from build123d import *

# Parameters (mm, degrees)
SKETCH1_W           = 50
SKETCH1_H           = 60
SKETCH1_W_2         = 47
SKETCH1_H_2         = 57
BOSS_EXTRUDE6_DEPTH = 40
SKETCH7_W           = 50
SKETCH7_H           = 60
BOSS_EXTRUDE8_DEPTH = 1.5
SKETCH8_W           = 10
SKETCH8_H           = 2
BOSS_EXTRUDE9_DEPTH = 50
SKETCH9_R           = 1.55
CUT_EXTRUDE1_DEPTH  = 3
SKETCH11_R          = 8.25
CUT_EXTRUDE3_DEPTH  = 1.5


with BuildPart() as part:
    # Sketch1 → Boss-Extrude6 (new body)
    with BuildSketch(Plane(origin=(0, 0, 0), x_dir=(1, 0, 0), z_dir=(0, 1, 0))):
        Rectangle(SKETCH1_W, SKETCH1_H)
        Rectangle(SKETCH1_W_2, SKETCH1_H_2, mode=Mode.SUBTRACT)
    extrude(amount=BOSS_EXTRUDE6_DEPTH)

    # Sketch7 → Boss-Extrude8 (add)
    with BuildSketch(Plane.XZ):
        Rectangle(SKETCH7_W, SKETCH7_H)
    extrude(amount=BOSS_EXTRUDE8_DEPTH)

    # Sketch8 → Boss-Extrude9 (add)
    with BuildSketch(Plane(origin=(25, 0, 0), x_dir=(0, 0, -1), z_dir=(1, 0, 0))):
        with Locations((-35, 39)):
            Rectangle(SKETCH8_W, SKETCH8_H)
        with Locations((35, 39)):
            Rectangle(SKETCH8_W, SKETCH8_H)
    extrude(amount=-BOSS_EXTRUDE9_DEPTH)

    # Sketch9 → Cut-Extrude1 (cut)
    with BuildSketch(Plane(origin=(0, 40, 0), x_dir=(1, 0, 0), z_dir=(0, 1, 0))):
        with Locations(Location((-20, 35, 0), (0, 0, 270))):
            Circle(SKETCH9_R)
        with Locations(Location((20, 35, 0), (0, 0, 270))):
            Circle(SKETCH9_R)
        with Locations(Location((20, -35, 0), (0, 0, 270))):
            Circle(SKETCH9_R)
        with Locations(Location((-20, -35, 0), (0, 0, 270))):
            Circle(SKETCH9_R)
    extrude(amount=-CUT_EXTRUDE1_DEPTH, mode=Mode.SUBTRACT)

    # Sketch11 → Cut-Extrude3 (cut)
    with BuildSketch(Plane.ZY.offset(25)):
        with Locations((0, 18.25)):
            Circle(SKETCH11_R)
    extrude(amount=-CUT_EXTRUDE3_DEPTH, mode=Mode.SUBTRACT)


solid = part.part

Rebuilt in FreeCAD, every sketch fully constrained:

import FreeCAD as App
import Part
import Sketcher
from FreeCAD import Vector
Q = App.Units.Quantity

doc = App.newDocument("Part")
params = doc.addObject("Spreadsheet::Sheet", "Params")
for row, (alias, value) in enumerate([
    ("sketch1_width", "50 mm"),
    ("sketch1_width2", "47 mm"),
    ("sketch1_height", "60 mm"),
    ("sketch1_height2", "57 mm"),
    ("pad1_length", "40 mm"),
    ("sketch2_width", "50 mm"),
    ("sketch2_height", "60 mm"),
    ("pad2_length", "1.5 mm"),
    ("sketch3_width", "2 mm"),
    ("sketch3_height", "10 mm"),
    ("pad3_length", "50 mm"),
    ("sketch4_diameter", "3.1 mm"),
    ("pocket1_length", "3 mm"),
    ("sketch5_diameter", "16.5 mm"),
    ("pocket2_length", "1.5 mm"),
], start=1):
    params.set(f"A{row}", alias)
    params.set(f"B{row}", "=" + value)
    params.setAlias(f"B{row}", alias)

body = doc.addObject("PartDesign::Body", "Body")

sketch1 = body.newObject("Sketcher::SketchObject", "Sketch")
sketch1.AttachmentSupport = (doc.getObject("XZ_Plane"), [""])
sketch1.MapMode = "FlatFace"
sketch1.addGeometry([
    Part.LineSegment(Vector(-25, -30, 0), Vector(-25, 30, 0)),
    Part.LineSegment(Vector(-25, 30, 0), Vector(25, 30, 0)),
    Part.LineSegment(Vector(25, 30, 0), Vector(25, -30, 0)),
    Part.LineSegment(Vector(25, -30, 0), Vector(-25, -30, 0)),
    Part.LineSegment(Vector(24, 28, 0), Vector(-24, 28, 0)),
    Part.LineSegment(Vector(-24, 28, 0), Vector(-24, -28, 0)),
    Part.LineSegment(Vector(-24, -28, 0), Vector(24, -28, 0)),
    Part.LineSegment(Vector(24, -28, 0), Vector(24, 28, 0)),
], False)
sketch1.addConstraint([
    Sketcher.Constraint("Coincident", 0, 2, 1, 1),
    Sketcher.Constraint("Coincident", 1, 2, 2, 1),
    Sketcher.Constraint("Coincident", 2, 2, 3, 1),
    Sketcher.Constraint("Coincident", 3, 2, 0, 1),
    Sketcher.Constraint("Coincident", 4, 2, 5, 1),
    Sketcher.Constraint("Coincident", 5, 2, 6, 1),
    Sketcher.Constraint("Coincident", 6, 2, 7, 1),
    Sketcher.Constraint("Coincident", 7, 2, 4, 1),
    Sketcher.Constraint("Vertical", 0),
    Sketcher.Constraint("Horizontal", 1),
    Sketcher.Constraint("Vertical", 2),
    Sketcher.Constraint("Horizontal", 3),
    Sketcher.Constraint("Horizontal", 4),
    Sketcher.Constraint("Vertical", 5),
    Sketcher.Constraint("Horizontal", 6),
    Sketcher.Constraint("Vertical", 7),
    Sketcher.Constraint("Symmetric", 0, 2, 2, 2, -1, 1),
    Sketcher.Constraint("Symmetric", 4, 2, 6, 2, -1, 1),
    Sketcher.Constraint("DistanceX", 1, 1, 1, 2, Q("50 mm")),
    Sketcher.Constraint("DistanceX", 4, 2, 4, 1, Q("47 mm")),
    Sketcher.Constraint("DistanceY", 0, 1, 0, 2, Q("60 mm")),
    Sketcher.Constraint("DistanceY", 5, 2, 5, 1, Q("57 mm")),
])
sketch1.setExpression("Constraints[18]", "Params.sketch1_width")
sketch1.setExpression("Constraints[19]", "Params.sketch1_width2")
sketch1.setExpression("Constraints[20]", "Params.sketch1_height")
sketch1.setExpression("Constraints[21]", "Params.sketch1_height2")
pad1 = body.newObject("PartDesign::Pad", "Pad")
pad1.Profile = sketch1
pad1.setExpression("Length", "Params.pad1_length")
pad1.Reversed = True

sketch2 = body.newObject("Sketcher::SketchObject", "Sketch001")
sketch2.AttachmentSupport = (doc.getObject("XZ_Plane"), [""])
sketch2.MapMode = "FlatFace"
sketch2.addGeometry([
    Part.LineSegment(Vector(-25, 30, 0), Vector(-25, -30, 0)),
    Part.LineSegment(Vector(-25, -30, 0), Vector(25, -30, 0)),
    Part.LineSegment(Vector(25, -30, 0), Vector(25, 30, 0)),
    Part.LineSegment(Vector(25, 30, 0), Vector(-25, 30, 0)),
], False)
sketch2.addConstraint([
    Sketcher.Constraint("Coincident", 0, 2, 1, 1),
    Sketcher.Constraint("Coincident", 1, 2, 2, 1),
    Sketcher.Constraint("Coincident", 2, 2, 3, 1),
    Sketcher.Constraint("Coincident", 3, 2, 0, 1),
    Sketcher.Constraint("Vertical", 0),
    Sketcher.Constraint("Horizontal", 1),
    Sketcher.Constraint("Vertical", 2),
    Sketcher.Constraint("Horizontal", 3),
    Sketcher.Constraint("Symmetric", 0, 2, 2, 2, -1, 1),
    Sketcher.Constraint("DistanceX", 1, 1, 1, 2, Q("50 mm")),
    Sketcher.Constraint("DistanceY", 0, 2, 0, 1, Q("60 mm")),
])
sketch2.setExpression("Constraints[9]", "Params.sketch2_width")
sketch2.setExpression("Constraints[10]", "Params.sketch2_height")
pad2 = body.newObject("PartDesign::Pad", "Pad001")
pad2.Profile = sketch2
pad2.setExpression("Length", "Params.pad2_length")

sketch3 = body.newObject("Sketcher::SketchObject", "Sketch002")
sketch3.AttachmentSupport = (doc.getObject("YZ_Plane"), [""])
sketch3.MapMode = "FlatFace"
sketch3.AttachmentOffset = App.Placement(Vector(0, 0, 25), App.Rotation())
sketch3.addGeometry([
    Part.LineSegment(Vector(40, 40, 0), Vector(38, 40, 0)),
    Part.LineSegment(Vector(38, 40, 0), Vector(38, 30, 0)),
    Part.LineSegment(Vector(38, 30, 0), Vector(40, 30, 0)),
    Part.LineSegment(Vector(40, 30, 0), Vector(40, 40, 0)),
    Part.LineSegment(Vector(40, -30, 0), Vector(38, -30, 0)),
    Part.LineSegment(Vector(38, -30, 0), Vector(38, -40, 0)),
    Part.LineSegment(Vector(38, -40, 0), Vector(40, -40, 0)),
    Part.LineSegment(Vector(40, -40, 0), Vector(40, -30, 0)),
], False)
sketch3.addConstraint([
    Sketcher.Constraint("Coincident", 0, 2, 1, 1),
    Sketcher.Constraint("Coincident", 1, 2, 2, 1),
    Sketcher.Constraint("Coincident", 2, 2, 3, 1),
    Sketcher.Constraint("Coincident", 3, 2, 0, 1),
    Sketcher.Constraint("Coincident", 4, 2, 5, 1),
    Sketcher.Constraint("Coincident", 5, 2, 6, 1),
    Sketcher.Constraint("Coincident", 6, 2, 7, 1),
    Sketcher.Constraint("Coincident", 7, 2, 4, 1),
    Sketcher.Constraint("Horizontal", 0),
    Sketcher.Constraint("Vertical", 1),
    Sketcher.Constraint("Horizontal", 2),
    Sketcher.Constraint("Vertical", 3),
    Sketcher.Constraint("Horizontal", 4),
    Sketcher.Constraint("Vertical", 5),
    Sketcher.Constraint("Horizontal", 6),
    Sketcher.Constraint("Vertical", 7),
    Sketcher.Constraint("Symmetric", 1, 2, 4, 2, -1),
    Sketcher.Constraint("Symmetric", 3, 2, 6, 2, -1),
    Sketcher.Constraint("DistanceX", 0, 2, 0, 1, Q("2 mm")),
    Sketcher.Constraint("DistanceY", 1, 2, 1, 1, Q("10 mm")),
    Sketcher.Constraint("DistanceX", -1, 1, 0, 2, Q("38 mm")),
    Sketcher.Constraint("DistanceY", -1, 1, 0, 2, Q("40 mm")),
])
sketch3.setExpression("Constraints[18]", "Params.sketch3_width")
sketch3.setExpression("Constraints[19]", "Params.sketch3_height")
pad3 = body.newObject("PartDesign::Pad", "Pad002")
pad3.Profile = sketch3
pad3.setExpression("Length", "Params.pad3_length")
pad3.Reversed = True

sketch4 = body.newObject("Sketcher::SketchObject", "Sketch003")
sketch4.AttachmentSupport = (doc.getObject("XZ_Plane"), [""])
sketch4.MapMode = "FlatFace"
sketch4.AttachmentOffset = App.Placement(Vector(0, 0, -40), App.Rotation())
sketch4.addGeometry([
    Part.Circle(Vector(-20, -35, 0), Vector(0, 0, 1), 1.6),
    Part.Circle(Vector(20, -35, 0), Vector(0, 0, 1), 1.6),
    Part.Circle(Vector(20, 35, 0), Vector(0, 0, 1), 1.6),
    Part.Circle(Vector(-20, 35, 0), Vector(0, 0, 1), 1.6),
], False)
sketch4.addConstraint([
    Sketcher.Constraint("Equal", 0, 1),
    Sketcher.Constraint("Equal", 1, 2),
    Sketcher.Constraint("Equal", 2, 3),
    Sketcher.Constraint("Symmetric", 0, 3, 2, 3, -1, 1),
    Sketcher.Constraint("Symmetric", 1, 3, 3, 3, -1, 1),
    Sketcher.Constraint("Symmetric", 0, 3, 1, 3, -2),
    Sketcher.Constraint("Diameter", 0, Q("3.1 mm")),
    Sketcher.Constraint("DistanceX", 0, 3, -1, 1, Q("20 mm")),
    Sketcher.Constraint("DistanceY", 0, 3, -1, 1, Q("35 mm")),
])
sketch4.setExpression("Constraints[6]", "Params.sketch4_diameter")
pocket1 = body.newObject("PartDesign::Pocket", "Pocket")
pocket1.Profile = sketch4
pocket1.setExpression("Length", "Params.pocket1_length")
pocket1.Reversed = True

sketch5 = body.newObject("Sketcher::SketchObject", "Sketch004")
sketch5.AttachmentSupport = (doc.getObject("YZ_Plane"), [""])
sketch5.MapMode = "FlatFace"
sketch5.AttachmentOffset = App.Placement(Vector(0, 0, -25), App.Rotation())
sketch5.addGeometry(Part.Circle(Vector(18, 0, 0), Vector(0, 0, 1), 8), False)
sketch5.addConstraint([
    Sketcher.Constraint("PointOnObject", 0, 3, -1),
    Sketcher.Constraint("Diameter", 0, Q("16.5 mm")),
    Sketcher.Constraint("DistanceX", -1, 1, 0, 3, Q("18.25 mm")),
])
sketch5.setExpression("Constraints[1]", "Params.sketch5_diameter")
pocket2 = body.newObject("PartDesign::Pocket", "Pocket001")
pocket2.Profile = sketch5
pocket2.setExpression("Length", "Params.pocket2_length")
pocket2.Reversed = True

doc.recompute()
